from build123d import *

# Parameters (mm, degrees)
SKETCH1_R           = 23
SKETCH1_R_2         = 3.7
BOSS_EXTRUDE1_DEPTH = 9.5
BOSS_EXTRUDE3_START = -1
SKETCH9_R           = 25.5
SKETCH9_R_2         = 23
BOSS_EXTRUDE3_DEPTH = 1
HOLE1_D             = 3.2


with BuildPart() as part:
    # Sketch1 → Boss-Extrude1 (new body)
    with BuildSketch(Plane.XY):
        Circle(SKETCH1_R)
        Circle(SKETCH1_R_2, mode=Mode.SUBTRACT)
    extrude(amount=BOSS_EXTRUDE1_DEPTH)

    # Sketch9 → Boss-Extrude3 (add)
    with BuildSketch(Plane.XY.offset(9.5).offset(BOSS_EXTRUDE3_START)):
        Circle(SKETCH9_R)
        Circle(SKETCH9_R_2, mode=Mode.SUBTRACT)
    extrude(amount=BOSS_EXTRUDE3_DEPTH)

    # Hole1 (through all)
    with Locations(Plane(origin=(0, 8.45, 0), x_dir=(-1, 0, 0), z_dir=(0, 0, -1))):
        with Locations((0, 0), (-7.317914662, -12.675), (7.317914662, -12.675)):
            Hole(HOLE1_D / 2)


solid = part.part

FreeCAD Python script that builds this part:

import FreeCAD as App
import Part
import Sketcher
from FreeCAD import Vector
Q = App.Units.Quantity

doc = App.newDocument("Part")
body = doc.addObject("PartDesign::Body", "Body")

# Sketch on XY plane
sketch1 = doc.addObject("Sketcher::SketchObject", "Sketch")
body.addObject(sketch1)
sketch1.AttachmentSupport = (doc.XY_Plane, [""])
sketch1.MapMode = "FlatFace"
sketch1.addGeometry(Part.Circle(Vector(0, 0, 0), Vector(0, 0, 1), 23), False)
sketch1.addGeometry(Part.Circle(Vector(0, 0, 0), Vector(0, 0, 1), 3.7), False)
sketch1.addConstraint(Sketcher.Constraint("Coincident", 0, 3, -1, 1))
sketch1.addConstraint(Sketcher.Constraint("Coincident", 1, 3, -1, 1))
sketch1.addConstraint(Sketcher.Constraint("Diameter", 0, Q("46 mm")))
sketch1.addConstraint(Sketcher.Constraint("Diameter", 1, Q("7.4 mm")))
pad1 = doc.addObject("PartDesign::Pad", "Pad")
body.addObject(pad1)
pad1.Profile = sketch1
pad1.Length = 9.5

# Sketch on XY plane
sketch2 = doc.addObject("Sketcher::SketchObject", "Sketch001")
body.addObject(sketch2)
sketch2.AttachmentSupport = (doc.XY_Plane, [""])
sketch2.MapMode = "FlatFace"
sketch2.AttachmentOffset = App.Placement(Vector(0, 0, 8.5), App.Rotation())
sketch2.addGeometry(Part.Circle(Vector(0, 0, 0), Vector(0, 0, 1), 25.5), False)
sketch2.addGeometry(Part.Circle(Vector(0, 0, 0), Vector(0, 0, 1), 23), False)
sketch2.addConstraint(Sketcher.Constraint("Coincident", 0, 3, -1, 1))
sketch2.addConstraint(Sketcher.Constraint("Coincident", 1, 3, -1, 1))
sketch2.addConstraint(Sketcher.Constraint("Diameter", 0, Q("51 mm")))
sketch2.addConstraint(Sketcher.Constraint("Diameter", 1, Q("46 mm")))
pad2 = doc.addObject("PartDesign::Pad", "Pad001")
body.addObject(pad2)
pad2.Profile = sketch2
pad2.Length = 1

# Sketch on XY plane
sketch3 = doc.addObject("Sketcher::SketchObject", "Sketch002")
body.addObject(sketch3)
sketch3.AttachmentSupport = (doc.XY_Plane, [""])
sketch3.MapMode = "FlatFace"
sketch3.addGeometry(Part.Circle(Vector(0, 8.45, 0), Vector(0, 0, 1), 1.6), False)
sketch3.addGeometry(Part.Circle(Vector(7.317915, -4.225, 0), Vector(0, 0, 1), 1.6), False)
sketch3.addGeometry(Part.Circle(Vector(-7.317915, -4.225, 0), Vector(0, 0, 1), 1.6), False)
sketch3.addConstraint(Sketcher.Constraint("Equal", 0, 1))
sketch3.addConstraint(Sketcher.Constraint("Equal", 1, 2))
sketch3.addConstraint(Sketcher.Constraint("Symmetric", 1, 3, 2, 3, -2))
sketch3.addConstraint(Sketcher.Constraint("PointOnObject", 0, 3, -2))
sketch3.addConstraint(Sketcher.Constraint("Diameter", 0, Q("3.2 mm")))
sketch3.addConstraint(Sketcher.Constraint("DistanceY", -1, 1, 0, 3, Q("8.45 mm")))
sketch3.addConstraint(Sketcher.Constraint("DistanceY", 1, 3, -1, 1, Q("4.225 mm")))
sketch3.addConstraint(Sketcher.Constraint("DistanceX", 2, 3, 1, 3, Q("14.635829 mm")))
doc.recompute()
hole = doc.addObject("PartDesign::Hole", "Hole")
body.addObject(hole)
hole.Profile = sketch3
hole.ThreadType = "None"
hole.Diameter = 3.2
hole.DepthType = "ThroughAll"
hole.Reversed = True

doc.recompute()
